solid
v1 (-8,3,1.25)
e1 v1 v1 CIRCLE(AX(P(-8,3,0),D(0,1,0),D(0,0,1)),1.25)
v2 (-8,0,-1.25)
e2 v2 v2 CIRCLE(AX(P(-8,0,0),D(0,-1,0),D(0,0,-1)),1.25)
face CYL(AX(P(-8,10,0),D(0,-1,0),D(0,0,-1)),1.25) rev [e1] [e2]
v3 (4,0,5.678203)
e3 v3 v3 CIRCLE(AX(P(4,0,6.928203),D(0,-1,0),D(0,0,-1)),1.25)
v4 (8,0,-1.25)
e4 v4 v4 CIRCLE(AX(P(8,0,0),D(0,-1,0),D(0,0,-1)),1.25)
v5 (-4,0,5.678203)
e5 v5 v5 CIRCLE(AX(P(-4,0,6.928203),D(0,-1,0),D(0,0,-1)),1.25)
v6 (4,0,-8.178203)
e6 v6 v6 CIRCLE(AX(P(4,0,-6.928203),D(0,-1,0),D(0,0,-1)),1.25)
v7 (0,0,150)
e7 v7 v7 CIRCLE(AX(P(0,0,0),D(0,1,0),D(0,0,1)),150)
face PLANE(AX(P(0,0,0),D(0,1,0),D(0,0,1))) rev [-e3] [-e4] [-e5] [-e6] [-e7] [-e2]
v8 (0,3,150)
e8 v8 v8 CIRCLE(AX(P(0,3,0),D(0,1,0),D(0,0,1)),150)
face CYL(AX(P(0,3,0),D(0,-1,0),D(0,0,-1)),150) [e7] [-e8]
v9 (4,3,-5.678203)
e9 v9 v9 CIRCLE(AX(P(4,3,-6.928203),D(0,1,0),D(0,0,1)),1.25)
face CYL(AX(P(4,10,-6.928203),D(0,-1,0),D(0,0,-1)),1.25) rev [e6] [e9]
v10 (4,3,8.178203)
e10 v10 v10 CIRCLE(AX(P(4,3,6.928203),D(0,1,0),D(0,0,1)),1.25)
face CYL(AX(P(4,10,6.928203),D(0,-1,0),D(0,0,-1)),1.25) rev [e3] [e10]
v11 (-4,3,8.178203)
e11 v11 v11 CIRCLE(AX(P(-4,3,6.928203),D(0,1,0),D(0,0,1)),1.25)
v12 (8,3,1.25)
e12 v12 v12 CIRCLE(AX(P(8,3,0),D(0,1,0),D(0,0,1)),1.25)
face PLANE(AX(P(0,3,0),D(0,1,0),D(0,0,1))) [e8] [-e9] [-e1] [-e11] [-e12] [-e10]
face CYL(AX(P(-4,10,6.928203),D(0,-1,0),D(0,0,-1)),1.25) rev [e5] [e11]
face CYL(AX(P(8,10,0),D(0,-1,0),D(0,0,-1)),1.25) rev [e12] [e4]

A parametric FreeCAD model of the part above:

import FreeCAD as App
import Part
import Sketcher
from FreeCAD import Vector

doc = App.newDocument("Part")
body = doc.addObject("PartDesign::Body", "Body")

sketch1 = body.newObject("Sketcher::SketchObject", "Sketch")
sketch1.AttachmentSupport = (doc.getObject("XZ_Plane"), [""])
sketch1.MapMode = "FlatFace"
sketch1.addGeometry(Part.Circle(Vector(0, 0, 0), Vector(0, 0, 1), 150), False)
sketch1.addConstraint([
    Sketcher.Constraint("Coincident", 0, 3, -1, 1),
    Sketcher.Constraint("Diameter", 0, 300.0),
])
pad1 = body.newObject("PartDesign::Pad", "Pad")
pad1.Profile = sketch1
pad1.Length = 3
pad1.Reversed = True

sketch2 = body.newObject("Sketcher::SketchObject", "Sketch001")
sketch2.AttachmentSupport = (doc.getObject("XZ_Plane"), [""])
sketch2.MapMode = "FlatFace"
sketch2.addGeometry([
    Part.Circle(Vector(8, 0, 0), Vector(0, 0, 1), 1.2),
    Part.Circle(Vector(4, 6.9, 0), Vector(0, 0, 1), 1.2),
    Part.Circle(Vector(4, -6.9, 0), Vector(0, 0, 1), 1.2),
    Part.Circle(Vector(-4, 6.9, 0), Vector(0, 0, 1), 1.2),
    Part.Circle(Vector(-8, 0, 0), Vector(0, 0, 1), 1.2),
], False)
sketch2.addConstraint([
    Sketcher.Constraint("Equal", 0, 1),
    Sketcher.Constraint("Equal", 1, 2),
    Sketcher.Constraint("Equal", 2, 3),
    Sketcher.Constraint("Equal", 3, 4),
    Sketcher.Constraint("Symmetric", 2, 3, 3, 3, -1, 1),
    Sketcher.Constraint("Symmetric", 0, 3, 4, 3, -1, 1),
    Sketcher.Constraint("Symmetric", 1, 3, 3, 3, -2),
    Sketcher.Constraint("PointOnObject", 0, 3, -1),
    Sketcher.Constraint("Diameter", 0, 2.5),
    Sketcher.Constraint("DistanceX", -1, 1, 0, 3, 8.0),
    Sketcher.Constraint("DistanceX", -1, 1, 1, 3, 4.0),
    Sketcher.Constraint("DistanceY", -1, 1, 1, 3, 6.928203),
])
pocket1 = body.newObject("PartDesign::Pocket", "Pocket")
pocket1.Profile = sketch2
pocket1.Length = 10

doc.recompute()
